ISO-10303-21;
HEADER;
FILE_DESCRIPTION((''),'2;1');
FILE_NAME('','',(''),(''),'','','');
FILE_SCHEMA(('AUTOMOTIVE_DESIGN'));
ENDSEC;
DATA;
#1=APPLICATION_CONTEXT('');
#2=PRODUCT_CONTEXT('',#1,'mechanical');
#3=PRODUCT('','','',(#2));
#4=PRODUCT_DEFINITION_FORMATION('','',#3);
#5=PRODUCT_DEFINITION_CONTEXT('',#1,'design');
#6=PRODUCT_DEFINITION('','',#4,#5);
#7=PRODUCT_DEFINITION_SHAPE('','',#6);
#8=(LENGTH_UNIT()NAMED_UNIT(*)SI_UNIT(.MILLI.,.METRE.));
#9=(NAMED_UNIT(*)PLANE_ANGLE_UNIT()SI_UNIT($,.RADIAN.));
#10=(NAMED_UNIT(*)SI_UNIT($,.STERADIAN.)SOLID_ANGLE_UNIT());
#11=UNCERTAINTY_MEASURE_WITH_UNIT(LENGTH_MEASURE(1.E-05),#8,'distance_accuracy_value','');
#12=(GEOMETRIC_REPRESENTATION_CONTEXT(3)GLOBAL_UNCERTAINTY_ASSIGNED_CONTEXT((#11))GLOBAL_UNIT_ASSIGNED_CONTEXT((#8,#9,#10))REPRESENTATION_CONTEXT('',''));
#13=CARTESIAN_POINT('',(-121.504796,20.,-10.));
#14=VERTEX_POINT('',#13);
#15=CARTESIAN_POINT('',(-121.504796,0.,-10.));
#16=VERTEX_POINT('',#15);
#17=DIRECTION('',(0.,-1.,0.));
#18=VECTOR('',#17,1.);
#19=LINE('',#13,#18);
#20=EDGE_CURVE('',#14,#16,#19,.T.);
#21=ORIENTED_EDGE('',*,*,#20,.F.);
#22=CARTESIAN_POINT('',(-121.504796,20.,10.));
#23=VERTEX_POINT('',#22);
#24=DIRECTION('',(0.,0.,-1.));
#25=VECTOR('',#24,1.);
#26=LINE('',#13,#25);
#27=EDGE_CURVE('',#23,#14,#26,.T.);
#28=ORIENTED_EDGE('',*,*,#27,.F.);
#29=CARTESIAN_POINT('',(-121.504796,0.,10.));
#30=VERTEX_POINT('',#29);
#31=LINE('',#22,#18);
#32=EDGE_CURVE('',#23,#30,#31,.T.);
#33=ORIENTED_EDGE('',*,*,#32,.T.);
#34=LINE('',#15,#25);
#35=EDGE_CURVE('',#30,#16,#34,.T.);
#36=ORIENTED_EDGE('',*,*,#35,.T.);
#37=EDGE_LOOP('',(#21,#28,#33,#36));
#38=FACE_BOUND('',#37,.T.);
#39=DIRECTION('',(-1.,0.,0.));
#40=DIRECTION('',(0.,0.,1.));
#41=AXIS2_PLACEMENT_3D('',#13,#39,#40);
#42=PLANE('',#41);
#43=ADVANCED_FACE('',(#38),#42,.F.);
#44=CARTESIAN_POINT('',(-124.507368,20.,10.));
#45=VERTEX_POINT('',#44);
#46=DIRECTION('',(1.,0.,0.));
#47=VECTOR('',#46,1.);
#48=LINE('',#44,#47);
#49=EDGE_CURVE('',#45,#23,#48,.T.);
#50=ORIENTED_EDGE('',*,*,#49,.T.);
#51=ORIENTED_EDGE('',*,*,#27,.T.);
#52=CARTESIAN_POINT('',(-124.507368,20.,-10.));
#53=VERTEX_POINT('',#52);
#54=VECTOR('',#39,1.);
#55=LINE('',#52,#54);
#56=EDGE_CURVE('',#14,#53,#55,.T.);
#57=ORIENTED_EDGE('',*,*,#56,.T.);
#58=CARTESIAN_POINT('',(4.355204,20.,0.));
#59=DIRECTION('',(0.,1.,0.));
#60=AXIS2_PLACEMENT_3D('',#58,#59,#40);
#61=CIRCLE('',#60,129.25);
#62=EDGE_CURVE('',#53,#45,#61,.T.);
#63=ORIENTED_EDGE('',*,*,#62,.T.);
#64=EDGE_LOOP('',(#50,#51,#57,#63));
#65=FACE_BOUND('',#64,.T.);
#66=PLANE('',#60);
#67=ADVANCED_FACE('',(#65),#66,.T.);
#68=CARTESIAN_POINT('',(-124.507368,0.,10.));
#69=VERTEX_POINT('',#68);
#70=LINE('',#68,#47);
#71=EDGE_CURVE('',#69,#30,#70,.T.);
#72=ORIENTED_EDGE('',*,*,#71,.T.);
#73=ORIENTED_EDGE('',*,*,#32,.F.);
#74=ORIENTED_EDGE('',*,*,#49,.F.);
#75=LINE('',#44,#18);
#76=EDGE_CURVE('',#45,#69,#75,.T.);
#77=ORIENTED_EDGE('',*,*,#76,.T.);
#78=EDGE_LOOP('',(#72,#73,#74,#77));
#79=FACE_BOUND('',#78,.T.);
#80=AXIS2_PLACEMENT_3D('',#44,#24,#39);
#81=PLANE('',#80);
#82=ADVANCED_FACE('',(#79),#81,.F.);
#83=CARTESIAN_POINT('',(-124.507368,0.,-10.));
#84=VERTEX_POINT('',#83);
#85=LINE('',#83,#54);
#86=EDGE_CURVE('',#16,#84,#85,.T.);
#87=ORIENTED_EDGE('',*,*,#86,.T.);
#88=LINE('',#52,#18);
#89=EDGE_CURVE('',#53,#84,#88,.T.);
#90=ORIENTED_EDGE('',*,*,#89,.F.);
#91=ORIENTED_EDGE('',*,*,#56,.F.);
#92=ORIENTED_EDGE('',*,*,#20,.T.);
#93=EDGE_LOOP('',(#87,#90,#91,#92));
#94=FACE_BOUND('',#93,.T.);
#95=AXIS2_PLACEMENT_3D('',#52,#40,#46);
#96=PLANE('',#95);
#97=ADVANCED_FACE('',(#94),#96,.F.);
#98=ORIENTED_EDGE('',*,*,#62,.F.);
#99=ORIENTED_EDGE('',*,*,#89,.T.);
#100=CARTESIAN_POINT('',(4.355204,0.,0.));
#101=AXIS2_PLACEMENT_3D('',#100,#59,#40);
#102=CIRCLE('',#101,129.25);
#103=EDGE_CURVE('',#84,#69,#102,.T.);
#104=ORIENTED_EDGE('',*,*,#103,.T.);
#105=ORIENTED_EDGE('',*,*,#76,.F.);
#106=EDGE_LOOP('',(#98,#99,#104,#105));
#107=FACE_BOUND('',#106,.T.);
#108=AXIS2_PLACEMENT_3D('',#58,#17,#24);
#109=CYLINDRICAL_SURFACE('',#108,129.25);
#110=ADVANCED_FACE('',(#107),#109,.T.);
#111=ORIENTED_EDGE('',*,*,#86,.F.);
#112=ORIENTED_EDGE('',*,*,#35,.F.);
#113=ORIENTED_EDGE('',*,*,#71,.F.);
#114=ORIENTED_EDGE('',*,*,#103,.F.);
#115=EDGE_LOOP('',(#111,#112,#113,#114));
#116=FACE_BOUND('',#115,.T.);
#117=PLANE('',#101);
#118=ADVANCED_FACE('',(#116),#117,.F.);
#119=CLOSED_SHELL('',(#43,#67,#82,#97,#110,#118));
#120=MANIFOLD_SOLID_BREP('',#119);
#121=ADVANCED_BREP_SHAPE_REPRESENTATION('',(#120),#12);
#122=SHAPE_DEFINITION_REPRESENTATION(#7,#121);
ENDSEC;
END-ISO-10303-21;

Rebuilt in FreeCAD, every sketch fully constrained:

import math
import FreeCAD as App
import Part
import Sketcher

V = App.Vector

doc = App.newDocument("Part")
body = doc.addObject("PartDesign::Body", "Body")

sketch1 = body.newObject("Sketcher::SketchObject", "Sketch")
sketch1.AttachmentSupport = (doc.getObject("XZ_Plane"), [""])
sketch1.MapMode = "FlatFace"
sketch1.addGeometry(Part.LineSegment(V(-121.5, -10, 0), V(-124.5, -10, 0)), False)
sketch1.addGeometry(Part.ArcOfCircle(Part.Circle(V(4.4, 0, 0), V(0, 0, 1), 129.3), math.radians(175.56), math.radians(184.44)), False)
sketch1.addGeometry(Part.LineSegment(V(-124.5, 10, 0), V(-121.5, 10, 0)), False)
sketch1.addGeometry(Part.LineSegment(V(-121.5, 10, 0), V(-121.5, -10, 0)), False)
sketch1.addConstraint(Sketcher.Constraint("Coincident", 0, 2, 1, 2))
sketch1.addConstraint(Sketcher.Constraint("Coincident", 1, 1, 2, 1))
sketch1.addConstraint(Sketcher.Constraint("Coincident", 2, 2, 3, 1))
sketch1.addConstraint(Sketcher.Constraint("Coincident", 3, 2, 0, 1))
sketch1.addConstraint(Sketcher.Constraint("Horizontal", 0))
sketch1.addConstraint(Sketcher.Constraint("Horizontal", 2))
sketch1.addConstraint(Sketcher.Constraint("Vertical", 3))
sketch1.addConstraint(Sketcher.Constraint("Symmetric", 0, 2, 1, 1, -1))
sketch1.addConstraint(Sketcher.Constraint("DistanceY", 3, 2, 3, 1, 20.0))
sketch1.addConstraint(Sketcher.Constraint("Radius", 1, 129.25))
sketch1.addConstraint(Sketcher.Constraint("DistanceX", 2, 2, 1, 3, 125.86))
sketch1.addConstraint(Sketcher.Constraint("DistanceX", -1, 1, 1, 3, 4.355204))
pad1 = body.newObject("PartDesign::Pad", "Pad")
pad1.Profile = sketch1
pad1.Length = 20
pad1.Reversed = True

doc.recompute()
